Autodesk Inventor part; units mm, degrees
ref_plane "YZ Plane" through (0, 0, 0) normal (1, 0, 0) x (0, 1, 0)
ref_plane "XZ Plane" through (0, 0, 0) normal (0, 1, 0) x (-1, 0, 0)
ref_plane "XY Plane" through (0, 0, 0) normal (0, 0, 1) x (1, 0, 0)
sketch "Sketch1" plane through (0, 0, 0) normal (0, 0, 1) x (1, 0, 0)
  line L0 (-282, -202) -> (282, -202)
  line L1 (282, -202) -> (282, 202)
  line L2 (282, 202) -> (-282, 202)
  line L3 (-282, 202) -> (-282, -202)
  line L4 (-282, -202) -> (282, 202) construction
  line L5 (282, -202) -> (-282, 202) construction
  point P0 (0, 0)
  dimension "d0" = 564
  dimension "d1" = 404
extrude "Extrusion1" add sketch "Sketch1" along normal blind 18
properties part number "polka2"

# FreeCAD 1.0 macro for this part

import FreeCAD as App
import Part
import Sketcher

V = App.Vector

doc = App.newDocument("Part")
body = doc.addObject("PartDesign::Body", "Body")

# Sketch on XY plane
sketch1 = body.newObject("Sketcher::SketchObject", "Sketch")
sketch1.AttachmentSupport = (doc.getObject("XY_Plane"), [""])
sketch1.MapMode = "FlatFace"
sketch1.addGeometry([
    Part.LineSegment(V(-282, 202, 0), V(-282, -202, 0)),
    Part.LineSegment(V(-282, -202, 0), V(282, -202, 0)),
    Part.LineSegment(V(282, -202, 0), V(282, 202, 0)),
    Part.LineSegment(V(282, 202, 0), V(-282, 202, 0)),
], False)
sketch1.addConstraint([
    Sketcher.Constraint("Coincident", 0, 2, 1, 1),
    Sketcher.Constraint("Coincident", 1, 2, 2, 1),
    Sketcher.Constraint("Coincident", 2, 2, 3, 1),
    Sketcher.Constraint("Coincident", 3, 2, 0, 1),
    Sketcher.Constraint("Vertical", 0),
    Sketcher.Constraint("Horizontal", 1),
    Sketcher.Constraint("Vertical", 2),
    Sketcher.Constraint("Horizontal", 3),
    Sketcher.Constraint("Symmetric", 0, 2, 2, 2, -1, 1),
    Sketcher.Constraint("DistanceX", 1, 1, 1, 2, 564.0),
    Sketcher.Constraint("DistanceY", 0, 2, 0, 1, 404.0),
])
pad1 = body.newObject("PartDesign::Pad", "Pad")
pad1.Profile = sketch1
pad1.Length = 18

doc.recompute()
